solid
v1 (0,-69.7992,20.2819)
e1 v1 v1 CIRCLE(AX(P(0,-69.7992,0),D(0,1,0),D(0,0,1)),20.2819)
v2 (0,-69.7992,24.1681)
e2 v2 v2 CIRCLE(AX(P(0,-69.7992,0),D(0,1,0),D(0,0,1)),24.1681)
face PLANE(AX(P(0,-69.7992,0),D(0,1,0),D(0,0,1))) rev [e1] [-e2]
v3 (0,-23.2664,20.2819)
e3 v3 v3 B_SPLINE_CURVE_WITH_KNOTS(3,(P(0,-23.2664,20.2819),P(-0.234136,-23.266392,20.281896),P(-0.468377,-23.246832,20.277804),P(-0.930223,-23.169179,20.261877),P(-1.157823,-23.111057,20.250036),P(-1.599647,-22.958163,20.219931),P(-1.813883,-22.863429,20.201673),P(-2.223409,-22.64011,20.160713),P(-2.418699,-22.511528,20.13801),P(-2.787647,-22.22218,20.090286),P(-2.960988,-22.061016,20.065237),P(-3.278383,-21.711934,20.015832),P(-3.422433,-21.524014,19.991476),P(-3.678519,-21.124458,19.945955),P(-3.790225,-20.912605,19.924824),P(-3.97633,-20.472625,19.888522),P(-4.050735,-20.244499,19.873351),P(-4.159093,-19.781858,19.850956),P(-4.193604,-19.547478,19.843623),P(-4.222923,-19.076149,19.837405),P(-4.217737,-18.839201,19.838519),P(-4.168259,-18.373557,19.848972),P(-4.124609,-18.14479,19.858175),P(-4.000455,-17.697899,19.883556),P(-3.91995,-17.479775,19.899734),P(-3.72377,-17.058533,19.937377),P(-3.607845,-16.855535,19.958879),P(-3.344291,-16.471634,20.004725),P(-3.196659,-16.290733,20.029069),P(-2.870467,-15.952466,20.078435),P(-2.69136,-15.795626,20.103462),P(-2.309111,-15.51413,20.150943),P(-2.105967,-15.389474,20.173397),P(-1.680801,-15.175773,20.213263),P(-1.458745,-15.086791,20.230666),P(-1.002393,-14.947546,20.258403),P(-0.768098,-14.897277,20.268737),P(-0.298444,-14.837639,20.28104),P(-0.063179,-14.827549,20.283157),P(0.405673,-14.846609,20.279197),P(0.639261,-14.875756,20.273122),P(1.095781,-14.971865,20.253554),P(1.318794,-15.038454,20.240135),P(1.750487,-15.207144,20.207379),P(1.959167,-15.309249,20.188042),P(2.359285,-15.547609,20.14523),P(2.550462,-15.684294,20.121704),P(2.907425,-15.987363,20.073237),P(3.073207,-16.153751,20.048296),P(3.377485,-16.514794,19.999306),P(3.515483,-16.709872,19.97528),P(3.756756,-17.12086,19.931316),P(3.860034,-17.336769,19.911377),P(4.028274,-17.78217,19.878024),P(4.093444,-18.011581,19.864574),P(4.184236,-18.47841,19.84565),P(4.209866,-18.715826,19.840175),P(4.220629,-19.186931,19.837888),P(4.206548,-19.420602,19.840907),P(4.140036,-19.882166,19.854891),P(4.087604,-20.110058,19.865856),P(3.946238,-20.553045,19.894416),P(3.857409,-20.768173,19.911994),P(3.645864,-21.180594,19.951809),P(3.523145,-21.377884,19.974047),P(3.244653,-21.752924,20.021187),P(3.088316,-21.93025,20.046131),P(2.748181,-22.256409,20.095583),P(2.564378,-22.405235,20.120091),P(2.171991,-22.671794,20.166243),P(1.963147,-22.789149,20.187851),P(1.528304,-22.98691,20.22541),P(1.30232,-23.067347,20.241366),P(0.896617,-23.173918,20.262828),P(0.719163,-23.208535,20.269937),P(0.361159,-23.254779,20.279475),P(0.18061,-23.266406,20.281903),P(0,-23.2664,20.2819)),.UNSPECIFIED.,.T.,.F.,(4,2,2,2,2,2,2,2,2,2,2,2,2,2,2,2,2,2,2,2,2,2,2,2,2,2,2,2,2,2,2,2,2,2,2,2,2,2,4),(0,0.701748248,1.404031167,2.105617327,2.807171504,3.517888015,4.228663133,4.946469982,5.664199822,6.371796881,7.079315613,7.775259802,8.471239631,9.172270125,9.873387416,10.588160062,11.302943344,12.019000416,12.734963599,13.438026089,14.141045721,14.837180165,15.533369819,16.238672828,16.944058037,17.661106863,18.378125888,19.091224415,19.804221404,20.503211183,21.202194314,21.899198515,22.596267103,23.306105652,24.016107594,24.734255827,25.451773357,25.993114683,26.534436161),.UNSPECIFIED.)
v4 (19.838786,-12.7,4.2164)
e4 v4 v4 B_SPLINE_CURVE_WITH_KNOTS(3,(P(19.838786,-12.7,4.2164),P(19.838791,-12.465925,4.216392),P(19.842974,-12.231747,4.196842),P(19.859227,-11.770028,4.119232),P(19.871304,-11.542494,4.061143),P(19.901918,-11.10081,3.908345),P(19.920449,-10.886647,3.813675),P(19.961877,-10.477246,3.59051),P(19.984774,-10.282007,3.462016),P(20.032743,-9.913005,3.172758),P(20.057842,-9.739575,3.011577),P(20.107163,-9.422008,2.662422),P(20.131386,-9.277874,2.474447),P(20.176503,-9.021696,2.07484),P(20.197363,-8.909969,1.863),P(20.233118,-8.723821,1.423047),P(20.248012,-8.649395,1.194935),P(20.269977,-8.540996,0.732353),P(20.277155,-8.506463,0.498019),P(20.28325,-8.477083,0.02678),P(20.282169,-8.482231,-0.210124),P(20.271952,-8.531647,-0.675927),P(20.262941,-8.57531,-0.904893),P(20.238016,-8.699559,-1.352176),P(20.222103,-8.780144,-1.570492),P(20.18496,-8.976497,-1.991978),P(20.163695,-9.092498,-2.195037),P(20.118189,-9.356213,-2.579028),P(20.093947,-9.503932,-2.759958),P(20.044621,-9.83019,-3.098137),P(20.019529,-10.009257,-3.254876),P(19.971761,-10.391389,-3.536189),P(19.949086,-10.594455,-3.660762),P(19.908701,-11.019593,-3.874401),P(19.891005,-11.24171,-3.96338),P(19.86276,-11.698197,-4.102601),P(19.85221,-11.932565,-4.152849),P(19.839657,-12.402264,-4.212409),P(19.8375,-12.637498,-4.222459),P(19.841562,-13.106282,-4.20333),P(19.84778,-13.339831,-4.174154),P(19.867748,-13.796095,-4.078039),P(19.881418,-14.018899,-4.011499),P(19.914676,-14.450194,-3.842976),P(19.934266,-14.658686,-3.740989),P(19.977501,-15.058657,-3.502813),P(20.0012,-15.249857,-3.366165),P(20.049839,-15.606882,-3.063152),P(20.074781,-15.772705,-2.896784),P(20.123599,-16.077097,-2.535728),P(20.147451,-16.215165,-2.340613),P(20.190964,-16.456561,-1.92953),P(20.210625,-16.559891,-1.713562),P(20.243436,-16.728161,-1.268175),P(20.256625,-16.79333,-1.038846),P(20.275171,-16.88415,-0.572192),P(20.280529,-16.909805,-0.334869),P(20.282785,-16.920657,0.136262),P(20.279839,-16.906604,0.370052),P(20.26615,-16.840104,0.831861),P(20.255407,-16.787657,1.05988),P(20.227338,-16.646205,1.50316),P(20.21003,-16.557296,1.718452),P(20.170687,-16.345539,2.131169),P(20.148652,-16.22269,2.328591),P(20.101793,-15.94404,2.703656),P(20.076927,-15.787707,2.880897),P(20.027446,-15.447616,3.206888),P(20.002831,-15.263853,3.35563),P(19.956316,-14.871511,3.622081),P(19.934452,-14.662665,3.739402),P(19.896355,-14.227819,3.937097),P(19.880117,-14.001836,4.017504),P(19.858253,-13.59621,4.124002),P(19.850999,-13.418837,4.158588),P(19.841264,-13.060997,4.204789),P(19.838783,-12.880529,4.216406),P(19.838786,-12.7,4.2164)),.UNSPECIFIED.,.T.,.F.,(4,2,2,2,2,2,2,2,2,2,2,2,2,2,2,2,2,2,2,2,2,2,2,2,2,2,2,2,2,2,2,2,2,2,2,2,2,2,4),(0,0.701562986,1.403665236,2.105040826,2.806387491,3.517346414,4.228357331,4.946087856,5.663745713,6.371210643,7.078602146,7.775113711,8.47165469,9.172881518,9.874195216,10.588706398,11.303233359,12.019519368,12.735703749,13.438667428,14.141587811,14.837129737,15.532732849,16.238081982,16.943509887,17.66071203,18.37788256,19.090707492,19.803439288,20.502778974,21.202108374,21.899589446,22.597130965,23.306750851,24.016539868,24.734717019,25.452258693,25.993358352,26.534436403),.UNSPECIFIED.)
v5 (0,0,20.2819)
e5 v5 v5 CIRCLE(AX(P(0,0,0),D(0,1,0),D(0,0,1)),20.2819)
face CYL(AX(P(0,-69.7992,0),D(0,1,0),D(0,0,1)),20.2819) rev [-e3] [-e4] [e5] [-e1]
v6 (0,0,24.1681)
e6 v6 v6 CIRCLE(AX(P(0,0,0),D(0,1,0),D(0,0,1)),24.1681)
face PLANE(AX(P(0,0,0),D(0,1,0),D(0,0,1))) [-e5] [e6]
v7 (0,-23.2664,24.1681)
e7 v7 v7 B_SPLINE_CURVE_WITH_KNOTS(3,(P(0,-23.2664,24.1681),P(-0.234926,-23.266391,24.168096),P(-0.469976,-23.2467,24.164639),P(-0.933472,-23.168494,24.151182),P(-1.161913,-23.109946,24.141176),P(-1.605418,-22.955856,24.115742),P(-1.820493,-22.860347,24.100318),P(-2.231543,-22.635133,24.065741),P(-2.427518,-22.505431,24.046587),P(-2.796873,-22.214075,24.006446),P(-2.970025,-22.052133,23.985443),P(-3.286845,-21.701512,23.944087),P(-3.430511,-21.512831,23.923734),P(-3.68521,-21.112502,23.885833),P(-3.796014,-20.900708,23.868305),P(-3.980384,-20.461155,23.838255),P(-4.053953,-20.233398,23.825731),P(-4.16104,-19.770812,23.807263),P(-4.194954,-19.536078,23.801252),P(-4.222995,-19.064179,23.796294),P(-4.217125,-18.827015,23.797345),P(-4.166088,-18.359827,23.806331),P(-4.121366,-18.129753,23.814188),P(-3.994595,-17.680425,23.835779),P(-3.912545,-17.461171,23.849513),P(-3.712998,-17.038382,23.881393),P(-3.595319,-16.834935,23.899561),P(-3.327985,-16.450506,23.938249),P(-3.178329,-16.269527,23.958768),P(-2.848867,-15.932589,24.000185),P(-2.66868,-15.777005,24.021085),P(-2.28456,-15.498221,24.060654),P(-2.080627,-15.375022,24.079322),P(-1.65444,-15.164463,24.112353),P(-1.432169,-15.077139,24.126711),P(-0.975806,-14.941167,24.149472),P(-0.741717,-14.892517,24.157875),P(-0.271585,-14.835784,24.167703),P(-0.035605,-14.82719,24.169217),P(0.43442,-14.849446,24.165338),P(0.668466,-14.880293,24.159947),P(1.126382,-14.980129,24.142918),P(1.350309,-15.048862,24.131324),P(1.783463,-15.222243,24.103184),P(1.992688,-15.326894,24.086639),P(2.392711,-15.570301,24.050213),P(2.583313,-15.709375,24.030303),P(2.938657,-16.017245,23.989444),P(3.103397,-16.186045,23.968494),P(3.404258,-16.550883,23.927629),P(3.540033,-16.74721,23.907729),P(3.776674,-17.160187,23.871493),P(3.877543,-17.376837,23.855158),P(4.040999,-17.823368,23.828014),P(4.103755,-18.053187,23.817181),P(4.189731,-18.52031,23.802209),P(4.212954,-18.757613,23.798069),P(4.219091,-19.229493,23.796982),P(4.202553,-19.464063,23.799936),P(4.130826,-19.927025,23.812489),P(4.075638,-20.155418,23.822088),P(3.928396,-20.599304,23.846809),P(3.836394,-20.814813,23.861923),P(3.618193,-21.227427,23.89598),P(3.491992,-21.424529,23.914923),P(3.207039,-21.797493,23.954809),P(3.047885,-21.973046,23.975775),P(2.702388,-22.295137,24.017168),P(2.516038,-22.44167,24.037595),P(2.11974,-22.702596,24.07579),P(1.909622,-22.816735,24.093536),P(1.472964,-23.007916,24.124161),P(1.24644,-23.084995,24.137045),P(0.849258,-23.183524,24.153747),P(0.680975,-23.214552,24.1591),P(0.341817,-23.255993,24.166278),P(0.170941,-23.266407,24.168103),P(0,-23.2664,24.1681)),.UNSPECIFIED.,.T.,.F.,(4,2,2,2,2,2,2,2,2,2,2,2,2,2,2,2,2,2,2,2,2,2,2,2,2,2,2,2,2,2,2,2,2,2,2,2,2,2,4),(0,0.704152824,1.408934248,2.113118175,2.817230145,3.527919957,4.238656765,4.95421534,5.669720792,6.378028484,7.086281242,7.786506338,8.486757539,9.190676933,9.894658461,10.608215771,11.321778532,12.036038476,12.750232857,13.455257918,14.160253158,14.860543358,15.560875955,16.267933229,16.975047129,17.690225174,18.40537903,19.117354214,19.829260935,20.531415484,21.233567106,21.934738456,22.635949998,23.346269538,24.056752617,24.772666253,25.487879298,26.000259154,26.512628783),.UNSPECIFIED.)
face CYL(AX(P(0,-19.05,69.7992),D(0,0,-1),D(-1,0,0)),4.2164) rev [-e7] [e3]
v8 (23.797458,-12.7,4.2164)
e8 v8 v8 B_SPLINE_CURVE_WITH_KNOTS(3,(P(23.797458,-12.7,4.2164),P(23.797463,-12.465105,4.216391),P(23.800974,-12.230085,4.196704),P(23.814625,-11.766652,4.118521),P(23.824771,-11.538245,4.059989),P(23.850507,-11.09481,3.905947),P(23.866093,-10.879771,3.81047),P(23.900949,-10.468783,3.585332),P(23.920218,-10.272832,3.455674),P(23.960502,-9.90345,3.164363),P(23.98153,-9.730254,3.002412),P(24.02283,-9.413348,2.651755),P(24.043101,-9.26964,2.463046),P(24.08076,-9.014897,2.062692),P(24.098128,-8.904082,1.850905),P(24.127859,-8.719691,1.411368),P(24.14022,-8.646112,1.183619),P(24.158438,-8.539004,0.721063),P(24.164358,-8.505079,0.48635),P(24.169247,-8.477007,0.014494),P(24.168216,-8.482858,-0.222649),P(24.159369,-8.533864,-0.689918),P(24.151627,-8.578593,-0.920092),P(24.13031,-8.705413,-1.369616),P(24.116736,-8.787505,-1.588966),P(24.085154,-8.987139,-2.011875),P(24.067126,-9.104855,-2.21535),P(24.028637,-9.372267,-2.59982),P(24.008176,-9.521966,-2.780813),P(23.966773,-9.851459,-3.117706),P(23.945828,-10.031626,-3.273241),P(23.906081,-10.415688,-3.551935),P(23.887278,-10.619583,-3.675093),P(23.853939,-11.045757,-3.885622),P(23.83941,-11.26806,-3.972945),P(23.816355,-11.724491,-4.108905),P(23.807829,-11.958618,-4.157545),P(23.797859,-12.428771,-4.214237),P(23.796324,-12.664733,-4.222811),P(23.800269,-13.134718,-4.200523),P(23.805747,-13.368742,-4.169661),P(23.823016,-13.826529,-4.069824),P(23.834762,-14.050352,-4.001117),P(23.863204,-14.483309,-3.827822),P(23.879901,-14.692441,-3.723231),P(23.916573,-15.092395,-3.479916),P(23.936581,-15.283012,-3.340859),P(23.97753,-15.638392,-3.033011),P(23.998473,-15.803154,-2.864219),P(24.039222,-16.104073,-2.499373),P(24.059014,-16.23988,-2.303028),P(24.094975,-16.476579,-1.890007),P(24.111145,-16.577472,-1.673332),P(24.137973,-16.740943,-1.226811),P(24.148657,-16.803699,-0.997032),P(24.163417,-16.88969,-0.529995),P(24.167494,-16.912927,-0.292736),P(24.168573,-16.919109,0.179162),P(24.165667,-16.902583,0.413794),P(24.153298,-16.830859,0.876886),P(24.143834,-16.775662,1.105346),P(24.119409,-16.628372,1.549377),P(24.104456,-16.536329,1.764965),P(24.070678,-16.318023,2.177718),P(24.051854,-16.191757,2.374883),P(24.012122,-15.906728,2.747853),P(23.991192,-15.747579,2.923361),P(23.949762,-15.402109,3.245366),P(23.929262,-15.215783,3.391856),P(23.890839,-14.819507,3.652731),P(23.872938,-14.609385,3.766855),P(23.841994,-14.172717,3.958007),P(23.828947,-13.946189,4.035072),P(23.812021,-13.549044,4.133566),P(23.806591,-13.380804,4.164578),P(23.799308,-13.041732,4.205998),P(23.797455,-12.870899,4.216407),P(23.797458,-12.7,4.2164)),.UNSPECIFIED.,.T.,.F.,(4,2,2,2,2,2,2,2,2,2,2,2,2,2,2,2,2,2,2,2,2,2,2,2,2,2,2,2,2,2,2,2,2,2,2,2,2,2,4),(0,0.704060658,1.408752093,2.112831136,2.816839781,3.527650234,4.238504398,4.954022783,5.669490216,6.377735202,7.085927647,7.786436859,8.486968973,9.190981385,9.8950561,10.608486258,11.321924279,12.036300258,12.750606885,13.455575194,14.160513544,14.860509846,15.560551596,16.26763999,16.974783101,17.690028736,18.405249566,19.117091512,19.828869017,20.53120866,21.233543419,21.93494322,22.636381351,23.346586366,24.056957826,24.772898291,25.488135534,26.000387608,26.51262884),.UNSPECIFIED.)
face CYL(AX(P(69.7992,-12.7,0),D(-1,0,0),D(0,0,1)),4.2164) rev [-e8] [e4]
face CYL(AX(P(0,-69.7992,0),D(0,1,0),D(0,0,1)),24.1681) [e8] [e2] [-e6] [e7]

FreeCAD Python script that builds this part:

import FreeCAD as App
import Part
import Sketcher

V = App.Vector
Q = App.Units.Quantity

doc = App.newDocument("Part")
body = doc.addObject("PartDesign::Body", "Body")

# Sketch on XZ plane
sketch1 = doc.addObject("Sketcher::SketchObject", "Sketch")
body.addObject(sketch1)
sketch1.AttachmentSupport = (doc.XZ_Plane, [""])
sketch1.MapMode = "FlatFace"
sketch1.addGeometry(Part.Circle(V(0, 0, 0), V(0, 0, 1), 24), False)
sketch1.addConstraint([
    Sketcher.Constraint("Coincident", 0, 3, -1, 1),
    Sketcher.Constraint("Diameter", 0, Q("1.903 in")),
])
pad1 = doc.addObject("PartDesign::Pad", "Pad")
body.addObject(pad1)
pad1.Profile = sketch1
pad1.Length = Q("2.748 in")

# Sketch on XZ plane
sketch2 = doc.addObject("Sketcher::SketchObject", "Sketch001")
body.addObject(sketch2)
sketch2.AttachmentSupport = (doc.XZ_Plane, [""])
sketch2.MapMode = "FlatFace"
sketch2.addGeometry(Part.Circle(V(0, 0, 0), V(0, 0, 1), 20), False)
sketch2.addConstraint([
    Sketcher.Constraint("Coincident", 0, 3, -1, 1),
    Sketcher.Constraint("Diameter", 0, Q("1.597 in")),
])
pocket1 = doc.addObject("PartDesign::Pocket", "Pocket")
body.addObject(pocket1)
pocket1.Profile = sketch2
pocket1.Type = "ThroughAll"
pocket1.Reversed = True

# Sketch on XY plane
sketch3 = doc.addObject("Sketcher::SketchObject", "Sketch002")
body.addObject(sketch3)
sketch3.AttachmentSupport = (doc.XY_Plane, [""])
sketch3.MapMode = "FlatFace"
sketch3.addGeometry(Part.Circle(V(0, -19.1, 0), V(0, 0, 1), 4.2), False)
sketch3.addConstraint([
    Sketcher.Constraint("PointOnObject", 0, 3, -2),
    Sketcher.Constraint("Diameter", 0, Q("0.332 in")),
    Sketcher.Constraint("DistanceY", 0, 3, -1, 1, Q("0.75 in")),
])
pocket2 = doc.addObject("PartDesign::Pocket", "Pocket001")
body.addObject(pocket2)
pocket2.Profile = sketch3
pocket2.Length = Q("2.748 in")
pocket2.Reversed = True

# Sketch on YZ plane
sketch4 = doc.addObject("Sketcher::SketchObject", "Sketch003")
body.addObject(sketch4)
sketch4.AttachmentSupport = (doc.YZ_Plane, [""])
sketch4.MapMode = "FlatFace"
sketch4.addGeometry(Part.Circle(V(-12.7, 0, 0), V(0, 0, 1), 4.2), False)
sketch4.addConstraint([
    Sketcher.Constraint("PointOnObject", 0, 3, -1),
    Sketcher.Constraint("Diameter", 0, Q("0.332 in")),
    Sketcher.Constraint("DistanceX", 0, 3, -1, 1, Q("0.5 in")),
])
pocket3 = doc.addObject("PartDesign::Pocket", "Pocket002")
body.addObject(pocket3)
pocket3.Profile = sketch4
pocket3.Length = Q("2.748 in")
pocket3.Reversed = True

doc.recompute()
